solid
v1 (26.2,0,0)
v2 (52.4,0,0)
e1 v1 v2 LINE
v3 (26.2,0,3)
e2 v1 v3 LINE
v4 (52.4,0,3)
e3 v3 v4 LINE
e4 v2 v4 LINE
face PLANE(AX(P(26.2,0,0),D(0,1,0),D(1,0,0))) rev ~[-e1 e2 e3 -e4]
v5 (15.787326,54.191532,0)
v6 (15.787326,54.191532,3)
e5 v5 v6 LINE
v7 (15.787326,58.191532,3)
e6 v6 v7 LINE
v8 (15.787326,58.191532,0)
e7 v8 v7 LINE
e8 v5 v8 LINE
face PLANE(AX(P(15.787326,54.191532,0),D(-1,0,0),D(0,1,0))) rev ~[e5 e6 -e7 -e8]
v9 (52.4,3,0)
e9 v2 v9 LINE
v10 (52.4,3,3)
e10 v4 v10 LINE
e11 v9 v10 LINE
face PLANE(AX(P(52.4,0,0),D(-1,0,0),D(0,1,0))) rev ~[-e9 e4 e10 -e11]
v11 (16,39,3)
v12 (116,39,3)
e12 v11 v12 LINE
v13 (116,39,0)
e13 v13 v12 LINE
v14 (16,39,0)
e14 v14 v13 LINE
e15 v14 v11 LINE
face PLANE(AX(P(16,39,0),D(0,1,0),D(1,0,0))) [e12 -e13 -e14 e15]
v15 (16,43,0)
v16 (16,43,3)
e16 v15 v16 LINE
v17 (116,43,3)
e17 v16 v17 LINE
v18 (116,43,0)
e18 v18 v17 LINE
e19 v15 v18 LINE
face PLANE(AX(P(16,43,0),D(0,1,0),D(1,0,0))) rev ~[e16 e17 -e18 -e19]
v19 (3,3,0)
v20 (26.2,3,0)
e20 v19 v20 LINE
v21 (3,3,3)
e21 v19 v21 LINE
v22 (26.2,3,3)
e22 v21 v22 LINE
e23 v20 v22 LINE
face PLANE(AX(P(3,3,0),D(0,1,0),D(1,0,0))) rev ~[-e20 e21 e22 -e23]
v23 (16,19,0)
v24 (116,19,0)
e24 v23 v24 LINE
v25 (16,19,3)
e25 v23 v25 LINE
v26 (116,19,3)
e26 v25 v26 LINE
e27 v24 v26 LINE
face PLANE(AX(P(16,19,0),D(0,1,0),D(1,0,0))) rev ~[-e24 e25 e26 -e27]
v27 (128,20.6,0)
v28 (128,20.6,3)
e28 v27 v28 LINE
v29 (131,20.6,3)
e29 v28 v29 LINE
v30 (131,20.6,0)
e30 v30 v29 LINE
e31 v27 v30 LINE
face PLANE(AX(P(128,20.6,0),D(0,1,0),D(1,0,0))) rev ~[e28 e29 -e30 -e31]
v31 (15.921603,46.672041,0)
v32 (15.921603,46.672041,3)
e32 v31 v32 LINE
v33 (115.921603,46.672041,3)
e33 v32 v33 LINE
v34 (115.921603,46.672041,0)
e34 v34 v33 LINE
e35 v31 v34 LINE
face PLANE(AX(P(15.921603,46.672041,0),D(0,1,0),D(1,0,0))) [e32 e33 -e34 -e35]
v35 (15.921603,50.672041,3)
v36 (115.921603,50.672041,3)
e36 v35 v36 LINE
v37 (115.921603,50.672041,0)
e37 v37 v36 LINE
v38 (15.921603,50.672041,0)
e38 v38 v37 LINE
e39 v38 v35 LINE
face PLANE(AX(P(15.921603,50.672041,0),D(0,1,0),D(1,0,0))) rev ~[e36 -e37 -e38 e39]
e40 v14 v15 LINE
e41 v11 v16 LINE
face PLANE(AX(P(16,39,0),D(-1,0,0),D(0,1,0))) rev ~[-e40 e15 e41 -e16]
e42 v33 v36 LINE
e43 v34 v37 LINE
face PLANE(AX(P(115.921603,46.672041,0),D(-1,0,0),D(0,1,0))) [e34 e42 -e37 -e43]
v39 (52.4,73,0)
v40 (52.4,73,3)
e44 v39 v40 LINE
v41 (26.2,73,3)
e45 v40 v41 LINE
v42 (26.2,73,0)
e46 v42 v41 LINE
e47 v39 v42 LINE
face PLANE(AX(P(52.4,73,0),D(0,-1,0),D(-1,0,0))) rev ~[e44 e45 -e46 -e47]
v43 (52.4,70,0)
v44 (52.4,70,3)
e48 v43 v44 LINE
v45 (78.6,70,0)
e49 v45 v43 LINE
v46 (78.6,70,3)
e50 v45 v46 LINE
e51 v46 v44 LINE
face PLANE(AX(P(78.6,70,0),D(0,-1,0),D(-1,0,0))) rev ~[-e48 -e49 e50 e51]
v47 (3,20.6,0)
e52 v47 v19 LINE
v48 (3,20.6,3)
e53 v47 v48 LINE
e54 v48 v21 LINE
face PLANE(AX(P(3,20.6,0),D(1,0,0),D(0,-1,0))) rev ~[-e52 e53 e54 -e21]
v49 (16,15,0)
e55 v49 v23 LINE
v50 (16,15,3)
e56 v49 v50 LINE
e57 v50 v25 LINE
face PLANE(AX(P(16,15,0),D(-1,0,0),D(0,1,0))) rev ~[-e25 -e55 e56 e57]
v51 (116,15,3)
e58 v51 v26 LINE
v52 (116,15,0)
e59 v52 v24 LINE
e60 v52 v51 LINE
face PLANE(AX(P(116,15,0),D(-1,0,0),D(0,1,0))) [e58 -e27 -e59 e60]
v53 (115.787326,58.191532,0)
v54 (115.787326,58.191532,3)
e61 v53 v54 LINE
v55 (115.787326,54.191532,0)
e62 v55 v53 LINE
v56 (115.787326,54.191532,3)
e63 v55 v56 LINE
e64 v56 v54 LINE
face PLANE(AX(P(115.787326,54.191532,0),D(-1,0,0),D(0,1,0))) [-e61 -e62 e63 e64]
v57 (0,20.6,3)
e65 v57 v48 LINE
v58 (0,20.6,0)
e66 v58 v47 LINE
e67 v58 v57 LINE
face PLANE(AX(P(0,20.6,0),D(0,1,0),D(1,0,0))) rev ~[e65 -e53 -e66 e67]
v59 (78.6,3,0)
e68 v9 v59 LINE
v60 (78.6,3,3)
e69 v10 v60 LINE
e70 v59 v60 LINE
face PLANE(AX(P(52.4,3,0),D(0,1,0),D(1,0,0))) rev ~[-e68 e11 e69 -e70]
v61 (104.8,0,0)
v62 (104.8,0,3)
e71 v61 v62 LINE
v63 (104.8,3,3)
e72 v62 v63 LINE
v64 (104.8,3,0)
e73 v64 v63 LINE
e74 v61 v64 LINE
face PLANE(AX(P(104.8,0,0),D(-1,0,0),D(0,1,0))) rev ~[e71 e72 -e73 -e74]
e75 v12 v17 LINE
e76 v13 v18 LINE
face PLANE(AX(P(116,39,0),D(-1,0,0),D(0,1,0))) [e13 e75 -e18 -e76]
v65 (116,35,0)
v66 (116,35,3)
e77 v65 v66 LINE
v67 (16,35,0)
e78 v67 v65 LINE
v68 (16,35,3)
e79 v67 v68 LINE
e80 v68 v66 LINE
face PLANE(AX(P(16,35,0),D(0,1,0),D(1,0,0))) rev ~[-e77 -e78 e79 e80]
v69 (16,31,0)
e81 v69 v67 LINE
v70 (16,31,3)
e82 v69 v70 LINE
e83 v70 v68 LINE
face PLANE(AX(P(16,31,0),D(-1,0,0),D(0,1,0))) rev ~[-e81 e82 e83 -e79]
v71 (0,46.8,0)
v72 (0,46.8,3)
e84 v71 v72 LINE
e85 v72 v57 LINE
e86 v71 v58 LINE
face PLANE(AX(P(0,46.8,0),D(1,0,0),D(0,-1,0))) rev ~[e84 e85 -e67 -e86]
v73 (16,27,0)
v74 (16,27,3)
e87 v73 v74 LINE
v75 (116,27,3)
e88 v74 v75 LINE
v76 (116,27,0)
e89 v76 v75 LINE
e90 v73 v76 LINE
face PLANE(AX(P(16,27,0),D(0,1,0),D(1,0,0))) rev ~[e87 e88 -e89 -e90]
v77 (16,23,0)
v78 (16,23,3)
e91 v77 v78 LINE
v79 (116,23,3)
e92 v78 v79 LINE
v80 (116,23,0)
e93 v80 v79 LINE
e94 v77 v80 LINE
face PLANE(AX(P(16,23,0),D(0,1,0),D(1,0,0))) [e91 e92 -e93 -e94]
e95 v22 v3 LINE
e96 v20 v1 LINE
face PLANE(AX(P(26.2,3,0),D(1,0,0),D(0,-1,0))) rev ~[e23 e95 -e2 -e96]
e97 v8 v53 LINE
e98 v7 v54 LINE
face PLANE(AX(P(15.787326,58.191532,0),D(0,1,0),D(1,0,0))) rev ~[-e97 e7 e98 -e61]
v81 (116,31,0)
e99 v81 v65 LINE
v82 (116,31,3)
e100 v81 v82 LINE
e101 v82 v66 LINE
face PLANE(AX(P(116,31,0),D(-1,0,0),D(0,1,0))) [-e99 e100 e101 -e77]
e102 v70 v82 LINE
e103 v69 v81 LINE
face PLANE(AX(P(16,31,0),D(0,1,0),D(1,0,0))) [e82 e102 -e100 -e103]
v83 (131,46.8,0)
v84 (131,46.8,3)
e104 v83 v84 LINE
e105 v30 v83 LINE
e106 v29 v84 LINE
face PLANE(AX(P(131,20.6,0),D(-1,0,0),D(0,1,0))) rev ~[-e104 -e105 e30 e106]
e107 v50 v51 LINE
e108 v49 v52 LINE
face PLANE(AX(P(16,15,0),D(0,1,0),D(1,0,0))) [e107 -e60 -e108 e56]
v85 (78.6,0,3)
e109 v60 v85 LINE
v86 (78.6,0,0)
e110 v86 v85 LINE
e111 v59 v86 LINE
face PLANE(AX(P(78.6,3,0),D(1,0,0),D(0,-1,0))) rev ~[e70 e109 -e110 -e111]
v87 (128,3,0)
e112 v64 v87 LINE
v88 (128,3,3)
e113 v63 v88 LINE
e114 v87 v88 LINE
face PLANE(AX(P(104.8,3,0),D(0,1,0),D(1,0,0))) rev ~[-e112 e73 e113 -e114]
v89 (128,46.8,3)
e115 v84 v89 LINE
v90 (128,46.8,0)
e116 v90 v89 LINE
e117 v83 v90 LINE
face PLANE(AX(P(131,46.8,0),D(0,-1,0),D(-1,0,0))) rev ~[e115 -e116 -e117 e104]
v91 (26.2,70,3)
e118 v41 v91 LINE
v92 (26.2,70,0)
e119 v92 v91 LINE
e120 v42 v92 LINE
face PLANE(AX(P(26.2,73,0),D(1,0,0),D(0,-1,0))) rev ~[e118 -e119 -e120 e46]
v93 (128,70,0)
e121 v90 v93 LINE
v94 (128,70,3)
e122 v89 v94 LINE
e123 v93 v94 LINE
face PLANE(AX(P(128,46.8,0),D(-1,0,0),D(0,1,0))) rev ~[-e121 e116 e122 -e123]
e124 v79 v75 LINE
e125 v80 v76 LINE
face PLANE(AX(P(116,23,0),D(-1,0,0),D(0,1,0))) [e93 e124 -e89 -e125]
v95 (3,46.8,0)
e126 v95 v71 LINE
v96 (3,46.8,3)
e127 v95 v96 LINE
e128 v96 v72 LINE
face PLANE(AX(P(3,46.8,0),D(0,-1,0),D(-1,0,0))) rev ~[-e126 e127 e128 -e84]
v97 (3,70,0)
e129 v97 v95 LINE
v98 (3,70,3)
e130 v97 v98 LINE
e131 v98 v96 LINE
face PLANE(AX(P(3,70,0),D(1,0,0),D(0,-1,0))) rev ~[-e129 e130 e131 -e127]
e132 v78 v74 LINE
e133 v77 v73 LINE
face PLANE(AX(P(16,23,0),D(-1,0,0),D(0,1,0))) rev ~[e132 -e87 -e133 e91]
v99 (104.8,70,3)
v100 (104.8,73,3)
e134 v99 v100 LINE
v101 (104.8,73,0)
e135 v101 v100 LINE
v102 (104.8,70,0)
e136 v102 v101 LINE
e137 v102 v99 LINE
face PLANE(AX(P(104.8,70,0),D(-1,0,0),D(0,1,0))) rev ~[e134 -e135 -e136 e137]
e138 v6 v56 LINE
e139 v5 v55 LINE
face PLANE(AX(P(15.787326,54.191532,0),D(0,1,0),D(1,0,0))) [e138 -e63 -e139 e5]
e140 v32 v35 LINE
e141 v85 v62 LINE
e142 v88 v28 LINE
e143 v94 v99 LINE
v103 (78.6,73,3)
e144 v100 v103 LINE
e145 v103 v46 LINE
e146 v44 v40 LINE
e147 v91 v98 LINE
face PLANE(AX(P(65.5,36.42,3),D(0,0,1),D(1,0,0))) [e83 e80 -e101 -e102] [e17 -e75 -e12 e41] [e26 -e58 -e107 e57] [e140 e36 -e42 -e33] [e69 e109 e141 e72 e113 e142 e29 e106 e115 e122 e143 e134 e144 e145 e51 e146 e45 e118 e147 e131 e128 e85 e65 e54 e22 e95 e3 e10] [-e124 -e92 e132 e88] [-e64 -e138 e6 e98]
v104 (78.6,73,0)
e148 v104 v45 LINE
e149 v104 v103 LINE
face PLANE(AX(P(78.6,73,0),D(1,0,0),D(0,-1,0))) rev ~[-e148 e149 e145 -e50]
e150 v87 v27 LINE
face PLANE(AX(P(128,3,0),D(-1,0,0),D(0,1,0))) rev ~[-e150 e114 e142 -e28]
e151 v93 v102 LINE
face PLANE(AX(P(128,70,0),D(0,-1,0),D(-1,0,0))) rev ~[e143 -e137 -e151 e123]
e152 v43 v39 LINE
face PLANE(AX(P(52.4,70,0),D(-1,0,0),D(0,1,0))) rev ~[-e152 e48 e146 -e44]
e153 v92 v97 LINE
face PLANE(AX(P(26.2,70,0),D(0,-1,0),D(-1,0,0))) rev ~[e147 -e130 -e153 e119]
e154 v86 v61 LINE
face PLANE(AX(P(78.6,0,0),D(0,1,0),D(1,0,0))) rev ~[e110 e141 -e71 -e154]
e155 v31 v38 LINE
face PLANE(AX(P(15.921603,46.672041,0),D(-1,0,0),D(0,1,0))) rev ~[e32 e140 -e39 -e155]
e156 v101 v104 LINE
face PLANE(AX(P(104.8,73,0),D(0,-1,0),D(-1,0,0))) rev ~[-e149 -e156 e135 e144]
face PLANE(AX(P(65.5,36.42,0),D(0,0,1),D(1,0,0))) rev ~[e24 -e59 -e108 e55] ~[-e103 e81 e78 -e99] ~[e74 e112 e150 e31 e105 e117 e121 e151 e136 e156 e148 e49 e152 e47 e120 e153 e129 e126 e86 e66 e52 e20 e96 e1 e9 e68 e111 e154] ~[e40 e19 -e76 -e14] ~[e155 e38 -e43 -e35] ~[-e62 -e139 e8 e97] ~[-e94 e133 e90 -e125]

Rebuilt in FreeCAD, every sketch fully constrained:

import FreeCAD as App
import Part
import Sketcher
from FreeCAD import Vector
Q = App.Units.Quantity

doc = App.newDocument("Part")
body = doc.addObject("PartDesign::Body", "Body")

# Sketch on XY plane
sketch1 = body.newObject("Sketcher::SketchObject", "Sketch")
sketch1.AttachmentSupport = (doc.getObject("XY_Plane"), [""])
sketch1.MapMode = "FlatFace"
sketch1.addGeometry([
    Part.LineSegment(Vector(104.8, 73, 0), Vector(78.6, 73, 0)),  # 0
    Part.LineSegment(Vector(78.6, 73, 0), Vector(78.6, 70, 0)),  # 1
    Part.LineSegment(Vector(78.6, 70, 0), Vector(52.4, 70, 0)),  # 2
    Part.LineSegment(Vector(52.4, 70, 0), Vector(52.4, 73, 0)),  # 3
    Part.LineSegment(Vector(52.4, 73, 0), Vector(26.2, 73, 0)),  # 4
    Part.LineSegment(Vector(26.2, 73, 0), Vector(26.2, 70, 0)),  # 5
    Part.LineSegment(Vector(26.2, 70, 0), Vector(3, 70, 0)),  # 6
    Part.LineSegment(Vector(3, 70, 0), Vector(3, 46.8, 0)),  # 7
    Part.LineSegment(Vector(3, 46.8, 0), Vector(0, 46.8, 0)),  # 8
    Part.LineSegment(Vector(0, 46.8, 0), Vector(0, 20.6, 0)),  # 9
    Part.LineSegment(Vector(0, 20.6, 0), Vector(3, 20.6, 0)),  # 10
    Part.LineSegment(Vector(3, 20.6, 0), Vector(3, 3, 0)),  # 11
    Part.LineSegment(Vector(3, 3, 0), Vector(26.2, 3, 0)),  # 12
    Part.LineSegment(Vector(26.2, 3, 0), Vector(26.2, 0, 0)),  # 13
    Part.LineSegment(Vector(26.2, 0, 0), Vector(52.4, 0, 0)),  # 14
    Part.LineSegment(Vector(52.4, 0, 0), Vector(52.4, 3, 0)),  # 15
    Part.LineSegment(Vector(52.4, 3, 0), Vector(78.6, 3, 0)),  # 16
    Part.LineSegment(Vector(78.6, 3, 0), Vector(78.6, 0, 0)),  # 17
    Part.LineSegment(Vector(78.6, 0, 0), Vector(104.8, 0, 0)),  # 18
    Part.LineSegment(Vector(104.8, 0, 0), Vector(104.8, 3, 0)),  # 19
    Part.LineSegment(Vector(104.8, 3, 0), Vector(128, 3, 0)),  # 20
    Part.LineSegment(Vector(128, 3, 0), Vector(128, 20.6, 0)),  # 21
    Part.LineSegment(Vector(128, 20.6, 0), Vector(131, 20.6, 0)),  # 22
    Part.LineSegment(Vector(131, 20.6, 0), Vector(131, 46.8, 0)),  # 23
    Part.LineSegment(Vector(131, 46.8, 0), Vector(128, 46.8, 0)),  # 24
    Part.LineSegment(Vector(128, 46.8, 0), Vector(128, 70, 0)),  # 25
    Part.LineSegment(Vector(128, 70, 0), Vector(104.8, 70, 0)),  # 26
    Part.LineSegment(Vector(104.8, 70, 0), Vector(104.8, 73, 0)),  # 27
    Part.LineSegment(Vector(116, 15, 0), Vector(16, 15, 0)),  # 28
    Part.LineSegment(Vector(16, 15, 0), Vector(16, 19, 0)),  # 29
    Part.LineSegment(Vector(16, 19, 0), Vector(116, 19, 0)),  # 30
    Part.LineSegment(Vector(116, 19, 0), Vector(116, 15, 0)),  # 31
    Part.LineSegment(Vector(116, 23, 0), Vector(16, 23, 0)),  # 32
    Part.LineSegment(Vector(16, 23, 0), Vector(16, 27, 0)),  # 33
    Part.LineSegment(Vector(16, 27, 0), Vector(116, 27, 0)),  # 34
    Part.LineSegment(Vector(116, 27, 0), Vector(116, 23, 0)),  # 35
    Part.LineSegment(Vector(116, 31, 0), Vector(16, 31, 0)),  # 36
    Part.LineSegment(Vector(16, 31, 0), Vector(16, 35, 0)),  # 37
    Part.LineSegment(Vector(16, 35, 0), Vector(116, 35, 0)),  # 38
    Part.LineSegment(Vector(116, 35, 0), Vector(116, 31, 0)),  # 39
    Part.LineSegment(Vector(115.787326, 54.191532, 0), Vector(15.787326, 54.191532, 0)),  # 40
    Part.LineSegment(Vector(15.787326, 54.191532, 0), Vector(15.787326, 58.191532, 0)),  # 41
    Part.LineSegment(Vector(15.787326, 58.191532, 0), Vector(115.787326, 58.191532, 0)),  # 42
    Part.LineSegment(Vector(115.787326, 58.191532, 0), Vector(115.787326, 54.191532, 0)),  # 43
    Part.LineSegment(Vector(116, 39, 0), Vector(16, 39, 0)),  # 44
    Part.LineSegment(Vector(16, 39, 0), Vector(16, 43, 0)),  # 45
    Part.LineSegment(Vector(16, 43, 0), Vector(116, 43, 0)),  # 46
    Part.LineSegment(Vector(116, 43, 0), Vector(116, 39, 0)),  # 47
    Part.LineSegment(Vector(115.921603, 46.672041, 0), Vector(15.921603, 46.672041, 0)),  # 48
    Part.LineSegment(Vector(15.921603, 46.672041, 0), Vector(15.921603, 50.672041, 0)),  # 49
    Part.LineSegment(Vector(15.921603, 50.672041, 0), Vector(115.921603, 50.672041, 0)),  # 50
    Part.LineSegment(Vector(115.921603, 50.672041, 0), Vector(115.921603, 46.672041, 0)),  # 51
], False)
sketch1.addConstraint([
    Sketcher.Constraint("Coincident", 0, 2, 1, 1),
    Sketcher.Constraint("Coincident", 1, 2, 2, 1),
    Sketcher.Constraint("Coincident", 2, 2, 3, 1),
    Sketcher.Constraint("Coincident", 3, 2, 4, 1),
    Sketcher.Constraint("Coincident", 4, 2, 5, 1),
    Sketcher.Constraint("Coincident", 5, 2, 6, 1),
    Sketcher.Constraint("Coincident", 6, 2, 7, 1),
    Sketcher.Constraint("Coincident", 7, 2, 8, 1),
    Sketcher.Constraint("Coincident", 8, 2, 9, 1),
    Sketcher.Constraint("Coincident", 9, 2, 10, 1),
    Sketcher.Constraint("Coincident", 10, 2, 11, 1),
    Sketcher.Constraint("Coincident", 11, 2, 12, 1),
    Sketcher.Constraint("Coincident", 12, 2, 13, 1),
    Sketcher.Constraint("Coincident", 13, 2, 14, 1),
    Sketcher.Constraint("Coincident", 14, 2, 15, 1),
    Sketcher.Constraint("Coincident", 15, 2, 16, 1),
    Sketcher.Constraint("Coincident", 16, 2, 17, 1),
    Sketcher.Constraint("Coincident", 17, 2, 18, 1),
    Sketcher.Constraint("Coincident", 18, 2, 19, 1),
    Sketcher.Constraint("Coincident", 19, 2, 20, 1),
    Sketcher.Constraint("Coincident", 20, 2, 21, 1),
    Sketcher.Constraint("Coincident", 21, 2, 22, 1),
    Sketcher.Constraint("Coincident", 22, 2, 23, 1),
    Sketcher.Constraint("Coincident", 23, 2, 24, 1),
    Sketcher.Constraint("Coincident", 24, 2, 25, 1),
    Sketcher.Constraint("Coincident", 25, 2, 26, 1),
    Sketcher.Constraint("Coincident", 26, 2, 27, 1),
    Sketcher.Constraint("Coincident", 27, 2, 0, 1),
    Sketcher.Constraint("Coincident", 28, 2, 29, 1),
    Sketcher.Constraint("Coincident", 29, 2, 30, 1),
    Sketcher.Constraint("Coincident", 30, 2, 31, 1),
    Sketcher.Constraint("Coincident", 31, 2, 28, 1),
    Sketcher.Constraint("Coincident", 32, 2, 33, 1),
    Sketcher.Constraint("Coincident", 33, 2, 34, 1),
    Sketcher.Constraint("Coincident", 34, 2, 35, 1),
    Sketcher.Constraint("Coincident", 35, 2, 32, 1),
    Sketcher.Constraint("Coincident", 36, 2, 37, 1),
    Sketcher.Constraint("Coincident", 37, 2, 38, 1),
    Sketcher.Constraint("Coincident", 38, 2, 39, 1),
    Sketcher.Constraint("Coincident", 39, 2, 36, 1),
    Sketcher.Constraint("Coincident", 40, 2, 41, 1),
    Sketcher.Constraint("Coincident", 41, 2, 42, 1),
    Sketcher.Constraint("Coincident", 42, 2, 43, 1),
    Sketcher.Constraint("Coincident", 43, 2, 40, 1),
    Sketcher.Constraint("Coincident", 44, 2, 45, 1),
    Sketcher.Constraint("Coincident", 45, 2, 46, 1),
    Sketcher.Constraint("Coincident", 46, 2, 47, 1),
    Sketcher.Constraint("Coincident", 47, 2, 44, 1),
    Sketcher.Constraint("Coincident", 48, 2, 49, 1),
    Sketcher.Constraint("Coincident", 49, 2, 50, 1),
    Sketcher.Constraint("Coincident", 50, 2, 51, 1),
    Sketcher.Constraint("Coincident", 51, 2, 48, 1),
    Sketcher.Constraint("Horizontal", 0),
    Sketcher.Constraint("Vertical", 1),
    Sketcher.Constraint("Horizontal", 2),
    Sketcher.Constraint("Vertical", 3),
    Sketcher.Constraint("Horizontal", 4),
    Sketcher.Constraint("Vertical", 5),
    Sketcher.Constraint("Horizontal", 6),
    Sketcher.Constraint("Vertical", 7),
    Sketcher.Constraint("Horizontal", 8),
    Sketcher.Constraint("Vertical", 9),
    Sketcher.Constraint("Horizontal", 10),
    Sketcher.Constraint("Vertical", 11),
    Sketcher.Constraint("Horizontal", 12),
    Sketcher.Constraint("Vertical", 13),
    Sketcher.Constraint("Horizontal", 14),
    Sketcher.Constraint("Vertical", 15),
    Sketcher.Constraint("Horizontal", 16),
    Sketcher.Constraint("Vertical", 17),
    Sketcher.Constraint("Horizontal", 18),
    Sketcher.Constraint("Vertical", 19),
    Sketcher.Constraint("Horizontal", 20),
    Sketcher.Constraint("Vertical", 21),
    Sketcher.Constraint("Horizontal", 22),
    Sketcher.Constraint("Vertical", 23),
    Sketcher.Constraint("Horizontal", 24),
    Sketcher.Constraint("Vertical", 25),
    Sketcher.Constraint("Horizontal", 26),
    Sketcher.Constraint("Vertical", 27),
    Sketcher.Constraint("Horizontal", 28),
    Sketcher.Constraint("Vertical", 29),
    Sketcher.Constraint("Horizontal", 30),
    Sketcher.Constraint("Vertical", 31),
    Sketcher.Constraint("Horizontal", 32),
    Sketcher.Constraint("Vertical", 33),
    Sketcher.Constraint("Horizontal", 34),
    Sketcher.Constraint("Vertical", 35),
    Sketcher.Constraint("Horizontal", 36),
    Sketcher.Constraint("Vertical", 37),
    Sketcher.Constraint("Horizontal", 38),
    Sketcher.Constraint("Vertical", 39),
    Sketcher.Constraint("Horizontal", 40),
    Sketcher.Constraint("Vertical", 41),
    Sketcher.Constraint("Horizontal", 42),
    Sketcher.Constraint("Vertical", 43),
    Sketcher.Constraint("Horizontal", 44),
    Sketcher.Constraint("Vertical", 45),
    Sketcher.Constraint("Horizontal", 46),
    Sketcher.Constraint("Vertical", 47),
    Sketcher.Constraint("Horizontal", 48),
    Sketcher.Constraint("Vertical", 49),
    Sketcher.Constraint("Horizontal", 50),
    Sketcher.Constraint("Vertical", 51),
    Sketcher.Constraint("PointOnObject", 8, 2, -2),
    Sketcher.Constraint("PointOnObject", 13, 2, -1),
    Sketcher.Constraint("PointOnObject", 17, 2, -1),
    Sketcher.Constraint("Horizontal", 0, 2, 3, 2),
    Sketcher.Constraint("Horizontal", 2, 2, 5, 2),
    Sketcher.Constraint("Horizontal", 12, 2, 15, 2),
    Sketcher.Constraint("Horizontal", 16, 2, 19, 2),
    Sketcher.Constraint("Horizontal", 10, 2, 21, 2),
    Sketcher.Constraint("Horizontal", 8, 2, 23, 2),
    Sketcher.Constraint("Horizontal", 6, 2, 25, 2),
    Sketcher.Constraint("Vertical", 7, 2, 10, 2),
    Sketcher.Constraint("Vertical", 5, 2, 12, 2),
    Sketcher.Constraint("Vertical", 3, 2, 14, 2),
    Sketcher.Constraint("Vertical", 1, 2, 16, 2),
    Sketcher.Constraint("Vertical", 21, 2, 24, 2),
    Sketcher.Constraint("Vertical", 19, 2, 26, 2),
    Sketcher.Constraint("Vertical", 29, 2, 32, 2),
    Sketcher.Constraint("Vertical", 31, 2, 34, 2),
    Sketcher.Constraint("Vertical", 33, 2, 36, 2),
    Sketcher.Constraint("Vertical", 35, 2, 38, 2),
    Sketcher.Constraint("Vertical", 37, 2, 44, 2),
    Sketcher.Constraint("Vertical", 39, 2, 46, 2),
    Sketcher.Constraint("Equal", 0, 2),
    Sketcher.Constraint("Equal", 2, 4),
    Sketcher.Constraint("Equal", 12, 20),
    Sketcher.Constraint("Equal", 10, 22),
    Sketcher.Constraint("Equal", 38, 40),
    Sketcher.Constraint("Equal", 46, 48),
    Sketcher.Constraint("Equal", 24, 1),
    Sketcher.Constraint("Equal", 26, 7),
    Sketcher.Constraint("Equal", 18, 9),
    Sketcher.Constraint("Equal", 5, 13),
    Sketcher.Constraint("Equal", 31, 33),
    Sketcher.Constraint("Equal", 35, 37),
    Sketcher.Constraint("Equal", 39, 41),
    Sketcher.Constraint("Equal", 43, 45),
    Sketcher.Constraint("Equal", 47, 49),
    Sketcher.Constraint("DistanceX", 8, 2, 8, 1, Q("3 mm")),
    Sketcher.Constraint("DistanceX", 28, 2, 28, 1, Q("100 mm")),
    Sketcher.Constraint("DistanceY", 29, 1, 29, 2, Q("4 mm")),
    Sketcher.Constraint("DistanceX", 0, 2, 0, 1, Q("26.2 mm")),
    Sketcher.Constraint("DistanceX", 6, 2, 6, 1, Q("23.2 mm")),
    Sketcher.Constraint("DistanceY", 11, 2, 11, 1, Q("17.6 mm")),
    Sketcher.Constraint("DistanceX", -1, 1, 28, 2, Q("16 mm")),
    Sketcher.Constraint("DistanceY", -1, 1, 28, 2, Q("15 mm")),
    Sketcher.Constraint("DistanceY", -1, 1, 32, 2, Q("23 mm")),
    Sketcher.Constraint("DistanceY", -1, 1, 36, 2, Q("31 mm")),
    Sketcher.Constraint("DistanceY", -1, 1, 44, 2, Q("39 mm")),
    Sketcher.Constraint("DistanceY", -1, 1, 40, 2, Q("54.191532 mm")),
    Sketcher.Constraint("DistanceY", -1, 1, 48, 2, Q("46.672041 mm")),
    Sketcher.Constraint("DistanceX", -1, 1, 40, 2, Q("15.787326 mm")),
    Sketcher.Constraint("DistanceX", -1, 1, 48, 2, Q("15.921603 mm")),
])
pad1 = body.newObject("PartDesign::Pad", "Pad")
pad1.Profile = sketch1
pad1.Length = 3

doc.recompute()
